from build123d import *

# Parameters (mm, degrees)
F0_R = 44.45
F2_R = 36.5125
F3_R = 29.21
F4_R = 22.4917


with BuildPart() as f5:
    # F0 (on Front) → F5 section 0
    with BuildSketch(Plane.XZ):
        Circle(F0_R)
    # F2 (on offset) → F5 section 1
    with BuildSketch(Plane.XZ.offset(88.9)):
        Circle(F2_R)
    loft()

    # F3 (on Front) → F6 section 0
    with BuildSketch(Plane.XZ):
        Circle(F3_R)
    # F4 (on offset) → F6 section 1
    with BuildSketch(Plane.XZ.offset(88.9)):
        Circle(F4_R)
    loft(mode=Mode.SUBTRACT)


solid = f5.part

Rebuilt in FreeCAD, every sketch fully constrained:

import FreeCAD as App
import Part
import Sketcher
from FreeCAD import Vector
Q = App.Units.Quantity

doc = App.newDocument("Part")
body = doc.addObject("PartDesign::Body", "Body")

# Sketch on XZ plane
sketch1 = body.newObject("Sketcher::SketchObject", "Sketch")
sketch1.AttachmentSupport = (doc.getObject("XZ_Plane"), [""])
sketch1.MapMode = "FlatFace"
sketch1.addGeometry(Part.Circle(Vector(0, 0, 0), Vector(0, 0, 1), 44), False)
sketch1.addConstraint(Sketcher.Constraint("Coincident", 0, 3, -1, 1))
sketch1.addConstraint(Sketcher.Constraint("Diameter", 0, Q("3.5 in")))

# Sketch on XZ plane
sketch2 = body.newObject("Sketcher::SketchObject", "Sketch001")
sketch2.AttachmentSupport = (doc.getObject("XZ_Plane"), [""])
sketch2.MapMode = "FlatFace"
sketch2.AttachmentOffset = App.Placement(Vector(0, 0, 3.5 * 25.4), App.Rotation())
sketch2.addGeometry(Part.Circle(Vector(0, 0, 0), Vector(0, 0, 1), 37), False)
sketch2.addConstraint(Sketcher.Constraint("Coincident", 0, 3, -1, 1))
sketch2.addConstraint(Sketcher.Constraint("Diameter", 0, Q("2.875 in")))

additiveloft = body.newObject("PartDesign::AdditiveLoft", "AdditiveLoft")
additiveloft.Profile = sketch1
additiveloft.Sections = [sketch2]

# Sketch on XZ plane
sketch3 = body.newObject("Sketcher::SketchObject", "Sketch002")
sketch3.AttachmentSupport = (doc.getObject("XZ_Plane"), [""])
sketch3.MapMode = "FlatFace"
sketch3.addGeometry(Part.Circle(Vector(0, 0, 0), Vector(0, 0, 1), 29), False)
sketch3.addConstraint(Sketcher.Constraint("Coincident", 0, 3, -1, 1))
sketch3.addConstraint(Sketcher.Constraint("Diameter", 0, Q("2.3 in")))

# Sketch on XZ plane
sketch4 = body.newObject("Sketcher::SketchObject", "Sketch003")
sketch4.AttachmentSupport = (doc.getObject("XZ_Plane"), [""])
sketch4.MapMode = "FlatFace"
sketch4.AttachmentOffset = App.Placement(Vector(0, 0, 3.5 * 25.4), App.Rotation())
sketch4.addGeometry(Part.Circle(Vector(0, 0, 0), Vector(0, 0, 1), 22), False)
sketch4.addConstraint(Sketcher.Constraint("Coincident", 0, 3, -1, 1))
sketch4.addConstraint(Sketcher.Constraint("Diameter", 0, Q("1.771 in")))

subtractiveloft = body.newObject("PartDesign::SubtractiveLoft", "SubtractiveLoft")
subtractiveloft.Profile = sketch3
subtractiveloft.Sections = [sketch4]

doc.recompute()
